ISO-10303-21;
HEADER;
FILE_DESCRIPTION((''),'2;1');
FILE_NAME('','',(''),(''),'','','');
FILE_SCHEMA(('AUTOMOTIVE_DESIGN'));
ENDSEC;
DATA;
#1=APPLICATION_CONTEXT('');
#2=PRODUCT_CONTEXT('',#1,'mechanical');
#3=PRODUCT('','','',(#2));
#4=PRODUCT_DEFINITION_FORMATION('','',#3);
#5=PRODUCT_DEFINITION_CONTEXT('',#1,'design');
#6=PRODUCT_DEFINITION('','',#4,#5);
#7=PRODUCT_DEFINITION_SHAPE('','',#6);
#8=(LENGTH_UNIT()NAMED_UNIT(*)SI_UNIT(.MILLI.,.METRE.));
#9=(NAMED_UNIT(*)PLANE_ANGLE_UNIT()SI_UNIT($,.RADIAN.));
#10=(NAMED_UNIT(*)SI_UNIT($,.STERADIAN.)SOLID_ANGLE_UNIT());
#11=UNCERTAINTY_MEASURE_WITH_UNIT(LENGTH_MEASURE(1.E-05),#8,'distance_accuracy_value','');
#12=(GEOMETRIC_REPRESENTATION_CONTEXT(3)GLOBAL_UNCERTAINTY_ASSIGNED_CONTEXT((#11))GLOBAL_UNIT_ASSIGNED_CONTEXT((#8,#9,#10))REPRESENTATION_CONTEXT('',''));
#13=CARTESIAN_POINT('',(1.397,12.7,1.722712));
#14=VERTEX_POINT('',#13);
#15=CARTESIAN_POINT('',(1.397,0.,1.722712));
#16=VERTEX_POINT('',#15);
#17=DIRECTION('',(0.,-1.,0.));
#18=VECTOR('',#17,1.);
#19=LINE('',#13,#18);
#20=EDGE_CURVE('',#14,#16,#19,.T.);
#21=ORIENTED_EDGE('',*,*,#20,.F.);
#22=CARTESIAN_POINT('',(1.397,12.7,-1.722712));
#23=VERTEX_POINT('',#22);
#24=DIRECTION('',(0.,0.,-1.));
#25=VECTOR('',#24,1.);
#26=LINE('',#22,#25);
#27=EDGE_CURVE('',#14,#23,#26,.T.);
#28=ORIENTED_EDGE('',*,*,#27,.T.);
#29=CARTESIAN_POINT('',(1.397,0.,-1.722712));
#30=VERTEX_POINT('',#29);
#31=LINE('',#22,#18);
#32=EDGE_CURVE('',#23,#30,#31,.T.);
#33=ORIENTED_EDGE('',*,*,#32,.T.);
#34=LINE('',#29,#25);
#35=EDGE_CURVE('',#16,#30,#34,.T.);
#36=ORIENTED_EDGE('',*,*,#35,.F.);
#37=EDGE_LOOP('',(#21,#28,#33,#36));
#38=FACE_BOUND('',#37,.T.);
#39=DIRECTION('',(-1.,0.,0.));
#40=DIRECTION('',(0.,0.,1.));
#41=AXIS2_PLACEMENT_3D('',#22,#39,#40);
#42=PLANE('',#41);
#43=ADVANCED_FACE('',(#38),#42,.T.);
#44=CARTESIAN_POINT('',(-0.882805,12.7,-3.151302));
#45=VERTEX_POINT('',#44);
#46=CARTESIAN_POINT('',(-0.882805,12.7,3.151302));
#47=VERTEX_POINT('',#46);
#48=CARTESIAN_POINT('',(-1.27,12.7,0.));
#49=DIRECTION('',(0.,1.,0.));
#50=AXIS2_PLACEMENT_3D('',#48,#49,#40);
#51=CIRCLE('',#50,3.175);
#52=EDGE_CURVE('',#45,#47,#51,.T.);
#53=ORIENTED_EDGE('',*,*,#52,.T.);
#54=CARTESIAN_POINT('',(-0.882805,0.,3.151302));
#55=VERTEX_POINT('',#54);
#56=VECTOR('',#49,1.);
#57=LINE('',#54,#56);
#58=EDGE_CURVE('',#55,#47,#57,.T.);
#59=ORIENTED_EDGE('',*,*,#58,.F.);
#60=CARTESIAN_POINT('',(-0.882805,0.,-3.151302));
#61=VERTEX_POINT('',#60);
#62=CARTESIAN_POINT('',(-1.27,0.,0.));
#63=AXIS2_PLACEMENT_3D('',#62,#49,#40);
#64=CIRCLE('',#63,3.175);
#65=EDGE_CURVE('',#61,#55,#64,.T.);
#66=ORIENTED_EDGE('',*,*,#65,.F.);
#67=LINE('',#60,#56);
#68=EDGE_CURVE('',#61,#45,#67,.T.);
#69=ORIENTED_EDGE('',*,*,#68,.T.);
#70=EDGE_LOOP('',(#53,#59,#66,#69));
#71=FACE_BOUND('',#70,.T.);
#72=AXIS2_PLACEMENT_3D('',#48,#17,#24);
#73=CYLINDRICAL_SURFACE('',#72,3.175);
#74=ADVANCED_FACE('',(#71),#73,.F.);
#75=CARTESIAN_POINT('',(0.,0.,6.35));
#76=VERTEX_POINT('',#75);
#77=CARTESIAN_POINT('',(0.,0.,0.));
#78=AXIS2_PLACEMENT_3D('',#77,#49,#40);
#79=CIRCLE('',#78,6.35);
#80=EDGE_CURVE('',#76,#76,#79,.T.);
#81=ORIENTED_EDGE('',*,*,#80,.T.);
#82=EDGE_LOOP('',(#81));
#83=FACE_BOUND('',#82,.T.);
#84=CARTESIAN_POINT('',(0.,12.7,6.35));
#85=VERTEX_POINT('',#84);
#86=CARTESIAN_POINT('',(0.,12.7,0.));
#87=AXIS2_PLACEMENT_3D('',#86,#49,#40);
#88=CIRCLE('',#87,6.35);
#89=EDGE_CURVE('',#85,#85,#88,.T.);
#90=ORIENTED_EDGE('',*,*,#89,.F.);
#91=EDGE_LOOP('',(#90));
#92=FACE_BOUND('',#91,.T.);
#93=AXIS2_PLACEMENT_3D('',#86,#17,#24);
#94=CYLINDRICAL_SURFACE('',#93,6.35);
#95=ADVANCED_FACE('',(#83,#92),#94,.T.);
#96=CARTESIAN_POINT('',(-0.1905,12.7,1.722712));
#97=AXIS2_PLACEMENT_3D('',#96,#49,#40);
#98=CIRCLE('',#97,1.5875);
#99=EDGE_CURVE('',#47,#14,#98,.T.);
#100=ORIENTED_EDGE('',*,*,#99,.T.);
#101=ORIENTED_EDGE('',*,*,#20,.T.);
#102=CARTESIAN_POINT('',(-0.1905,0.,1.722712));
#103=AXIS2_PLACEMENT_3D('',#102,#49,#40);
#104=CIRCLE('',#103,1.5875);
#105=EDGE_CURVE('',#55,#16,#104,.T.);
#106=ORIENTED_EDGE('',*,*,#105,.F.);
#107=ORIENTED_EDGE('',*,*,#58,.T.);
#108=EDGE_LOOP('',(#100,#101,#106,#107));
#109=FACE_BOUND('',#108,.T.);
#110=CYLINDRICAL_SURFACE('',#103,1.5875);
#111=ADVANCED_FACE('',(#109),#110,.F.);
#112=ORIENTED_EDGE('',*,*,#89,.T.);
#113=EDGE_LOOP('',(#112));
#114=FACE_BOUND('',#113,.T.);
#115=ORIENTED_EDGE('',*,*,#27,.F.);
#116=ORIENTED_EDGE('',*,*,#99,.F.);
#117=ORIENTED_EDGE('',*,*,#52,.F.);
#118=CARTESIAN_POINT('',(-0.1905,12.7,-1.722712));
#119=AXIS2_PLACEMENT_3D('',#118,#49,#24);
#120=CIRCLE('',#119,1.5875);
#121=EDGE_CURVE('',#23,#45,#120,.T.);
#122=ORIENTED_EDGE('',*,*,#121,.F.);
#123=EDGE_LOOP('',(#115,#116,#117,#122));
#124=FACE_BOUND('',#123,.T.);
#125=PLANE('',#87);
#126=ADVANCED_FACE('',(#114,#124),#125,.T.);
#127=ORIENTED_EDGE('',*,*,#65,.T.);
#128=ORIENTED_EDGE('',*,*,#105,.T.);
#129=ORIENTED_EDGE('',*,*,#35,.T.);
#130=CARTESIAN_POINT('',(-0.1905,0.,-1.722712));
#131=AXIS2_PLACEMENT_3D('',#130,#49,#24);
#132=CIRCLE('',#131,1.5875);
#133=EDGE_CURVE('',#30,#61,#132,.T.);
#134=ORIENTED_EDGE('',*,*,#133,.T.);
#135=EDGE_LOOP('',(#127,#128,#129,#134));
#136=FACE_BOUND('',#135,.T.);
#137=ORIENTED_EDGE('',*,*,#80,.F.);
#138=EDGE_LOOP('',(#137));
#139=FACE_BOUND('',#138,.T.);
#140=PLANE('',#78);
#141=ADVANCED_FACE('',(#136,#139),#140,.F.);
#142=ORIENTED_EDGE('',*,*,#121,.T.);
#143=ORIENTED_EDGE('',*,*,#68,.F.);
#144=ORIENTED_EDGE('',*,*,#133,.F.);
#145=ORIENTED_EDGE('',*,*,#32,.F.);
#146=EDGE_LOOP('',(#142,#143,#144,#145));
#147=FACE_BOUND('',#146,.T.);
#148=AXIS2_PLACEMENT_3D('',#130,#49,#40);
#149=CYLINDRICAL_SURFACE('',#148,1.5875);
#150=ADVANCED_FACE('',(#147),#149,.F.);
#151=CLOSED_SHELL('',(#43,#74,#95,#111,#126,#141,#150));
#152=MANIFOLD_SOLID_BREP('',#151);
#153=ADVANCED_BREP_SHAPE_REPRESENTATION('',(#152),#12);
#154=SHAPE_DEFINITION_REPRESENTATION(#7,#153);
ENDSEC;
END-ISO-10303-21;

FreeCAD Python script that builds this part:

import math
import FreeCAD as App
import Part
import Sketcher
from FreeCAD import Vector
Q = App.Units.Quantity

doc = App.newDocument("Part")
body = doc.addObject("PartDesign::Body", "Body")

# Sketch on XZ plane
sketch1 = body.newObject("Sketcher::SketchObject", "Sketch")
sketch1.AttachmentSupport = (doc.getObject("XZ_Plane"), [""])
sketch1.MapMode = "FlatFace"
sketch1.addGeometry([
    Part.Circle(Vector(0, 0, 0), Vector(0, 0, 1), 6.35),
    Part.ArcOfCircle(Part.Circle(Vector(-1.27, 0, 0), Vector(0, 0, 1), 3.175), math.radians(32.85988), math.radians(327.14012)),
    Part.LineSegment(Vector(1.397, -1.722712, 0), Vector(1.397, 1.722712, 0)),
], False)
sketch1.addConstraint([
    Sketcher.Constraint("Coincident", 1, 1, 2, 2),
    Sketcher.Constraint("Coincident", 2, 1, 1, 2),
    Sketcher.Constraint("Vertical", 2),
    Sketcher.Constraint("Coincident", 0, 3, -1, 1),
    Sketcher.Constraint("PointOnObject", 1, 3, -1),
    Sketcher.Constraint("Diameter", 0, Q("0.5 in")),
    Sketcher.Constraint("Radius", 1, Q("0.125 in")),
    Sketcher.Constraint("DistanceX", 1, 3, -1, 1, Q("0.05 in")),
    Sketcher.Constraint("DistanceX", -1, 1, 1, 1, Q("0.055 in")),
])
pad1 = body.newObject("PartDesign::Pad", "Pad")
pad1.Profile = sketch1
pad1.Length = Q("0.5 in")
pad1.Reversed = True

# Sketch on XZ plane
sketch2 = body.newObject("Sketcher::SketchObject", "Sketch001")
sketch2.AttachmentSupport = (doc.getObject("XZ_Plane"), [""])
sketch2.MapMode = "FlatFace"
sketch2.AttachmentOffset = App.Placement(Vector(0, 0, -0.5 * 25.4), App.Rotation())
sketch2.addGeometry([
    Part.LineSegment(Vector(-0.882805, -3.151302, 0), Vector(-0.882805, 3.151302, 0)),
    Part.ArcOfCircle(Part.Circle(Vector(-0.1905, 1.722712, 0), Vector(0, 0, 1), 1.5875), math.radians(0), math.radians(115.855154)),
    Part.LineSegment(Vector(1.397, 1.722712, 0), Vector(1.397, -1.722712, 0)),
    Part.ArcOfCircle(Part.Circle(Vector(-0.1905, -1.722712, 0), Vector(0, 0, 1), 1.5875), math.radians(-115.855154), math.radians(0)),
], False)
sketch2.addConstraint([
    Sketcher.Constraint("Coincident", 0, 2, 1, 2),
    Sketcher.Constraint("Tangent", 1, 1, 2, 1),
    Sketcher.Constraint("Tangent", 2, 2, 3, 2),
    Sketcher.Constraint("Coincident", 3, 1, 0, 1),
    Sketcher.Constraint("Vertical", 0),
    Sketcher.Constraint("Vertical", 2),
    Sketcher.Constraint("Equal", 1, 3),
    Sketcher.Constraint("Radius", 1, Q("0.0625 in")),
    Sketcher.Constraint("DistanceX", -1, 1, 1, 1, Q("0.055 in")),
    Sketcher.Constraint("DistanceY", 0, 1, 0, 2, 6.302604),
    Sketcher.Constraint("DistanceY", 2, 2, 2, 1, 3.445424),
    Sketcher.Constraint("DistanceY", -1, 1, 1, 3, 1.722712),
])
pocket1 = body.newObject("PartDesign::Pocket", "Pocket")
pocket1.Profile = sketch2
pocket1.Type = "ThroughAll"
pocket1.Reversed = True

doc.recompute()
